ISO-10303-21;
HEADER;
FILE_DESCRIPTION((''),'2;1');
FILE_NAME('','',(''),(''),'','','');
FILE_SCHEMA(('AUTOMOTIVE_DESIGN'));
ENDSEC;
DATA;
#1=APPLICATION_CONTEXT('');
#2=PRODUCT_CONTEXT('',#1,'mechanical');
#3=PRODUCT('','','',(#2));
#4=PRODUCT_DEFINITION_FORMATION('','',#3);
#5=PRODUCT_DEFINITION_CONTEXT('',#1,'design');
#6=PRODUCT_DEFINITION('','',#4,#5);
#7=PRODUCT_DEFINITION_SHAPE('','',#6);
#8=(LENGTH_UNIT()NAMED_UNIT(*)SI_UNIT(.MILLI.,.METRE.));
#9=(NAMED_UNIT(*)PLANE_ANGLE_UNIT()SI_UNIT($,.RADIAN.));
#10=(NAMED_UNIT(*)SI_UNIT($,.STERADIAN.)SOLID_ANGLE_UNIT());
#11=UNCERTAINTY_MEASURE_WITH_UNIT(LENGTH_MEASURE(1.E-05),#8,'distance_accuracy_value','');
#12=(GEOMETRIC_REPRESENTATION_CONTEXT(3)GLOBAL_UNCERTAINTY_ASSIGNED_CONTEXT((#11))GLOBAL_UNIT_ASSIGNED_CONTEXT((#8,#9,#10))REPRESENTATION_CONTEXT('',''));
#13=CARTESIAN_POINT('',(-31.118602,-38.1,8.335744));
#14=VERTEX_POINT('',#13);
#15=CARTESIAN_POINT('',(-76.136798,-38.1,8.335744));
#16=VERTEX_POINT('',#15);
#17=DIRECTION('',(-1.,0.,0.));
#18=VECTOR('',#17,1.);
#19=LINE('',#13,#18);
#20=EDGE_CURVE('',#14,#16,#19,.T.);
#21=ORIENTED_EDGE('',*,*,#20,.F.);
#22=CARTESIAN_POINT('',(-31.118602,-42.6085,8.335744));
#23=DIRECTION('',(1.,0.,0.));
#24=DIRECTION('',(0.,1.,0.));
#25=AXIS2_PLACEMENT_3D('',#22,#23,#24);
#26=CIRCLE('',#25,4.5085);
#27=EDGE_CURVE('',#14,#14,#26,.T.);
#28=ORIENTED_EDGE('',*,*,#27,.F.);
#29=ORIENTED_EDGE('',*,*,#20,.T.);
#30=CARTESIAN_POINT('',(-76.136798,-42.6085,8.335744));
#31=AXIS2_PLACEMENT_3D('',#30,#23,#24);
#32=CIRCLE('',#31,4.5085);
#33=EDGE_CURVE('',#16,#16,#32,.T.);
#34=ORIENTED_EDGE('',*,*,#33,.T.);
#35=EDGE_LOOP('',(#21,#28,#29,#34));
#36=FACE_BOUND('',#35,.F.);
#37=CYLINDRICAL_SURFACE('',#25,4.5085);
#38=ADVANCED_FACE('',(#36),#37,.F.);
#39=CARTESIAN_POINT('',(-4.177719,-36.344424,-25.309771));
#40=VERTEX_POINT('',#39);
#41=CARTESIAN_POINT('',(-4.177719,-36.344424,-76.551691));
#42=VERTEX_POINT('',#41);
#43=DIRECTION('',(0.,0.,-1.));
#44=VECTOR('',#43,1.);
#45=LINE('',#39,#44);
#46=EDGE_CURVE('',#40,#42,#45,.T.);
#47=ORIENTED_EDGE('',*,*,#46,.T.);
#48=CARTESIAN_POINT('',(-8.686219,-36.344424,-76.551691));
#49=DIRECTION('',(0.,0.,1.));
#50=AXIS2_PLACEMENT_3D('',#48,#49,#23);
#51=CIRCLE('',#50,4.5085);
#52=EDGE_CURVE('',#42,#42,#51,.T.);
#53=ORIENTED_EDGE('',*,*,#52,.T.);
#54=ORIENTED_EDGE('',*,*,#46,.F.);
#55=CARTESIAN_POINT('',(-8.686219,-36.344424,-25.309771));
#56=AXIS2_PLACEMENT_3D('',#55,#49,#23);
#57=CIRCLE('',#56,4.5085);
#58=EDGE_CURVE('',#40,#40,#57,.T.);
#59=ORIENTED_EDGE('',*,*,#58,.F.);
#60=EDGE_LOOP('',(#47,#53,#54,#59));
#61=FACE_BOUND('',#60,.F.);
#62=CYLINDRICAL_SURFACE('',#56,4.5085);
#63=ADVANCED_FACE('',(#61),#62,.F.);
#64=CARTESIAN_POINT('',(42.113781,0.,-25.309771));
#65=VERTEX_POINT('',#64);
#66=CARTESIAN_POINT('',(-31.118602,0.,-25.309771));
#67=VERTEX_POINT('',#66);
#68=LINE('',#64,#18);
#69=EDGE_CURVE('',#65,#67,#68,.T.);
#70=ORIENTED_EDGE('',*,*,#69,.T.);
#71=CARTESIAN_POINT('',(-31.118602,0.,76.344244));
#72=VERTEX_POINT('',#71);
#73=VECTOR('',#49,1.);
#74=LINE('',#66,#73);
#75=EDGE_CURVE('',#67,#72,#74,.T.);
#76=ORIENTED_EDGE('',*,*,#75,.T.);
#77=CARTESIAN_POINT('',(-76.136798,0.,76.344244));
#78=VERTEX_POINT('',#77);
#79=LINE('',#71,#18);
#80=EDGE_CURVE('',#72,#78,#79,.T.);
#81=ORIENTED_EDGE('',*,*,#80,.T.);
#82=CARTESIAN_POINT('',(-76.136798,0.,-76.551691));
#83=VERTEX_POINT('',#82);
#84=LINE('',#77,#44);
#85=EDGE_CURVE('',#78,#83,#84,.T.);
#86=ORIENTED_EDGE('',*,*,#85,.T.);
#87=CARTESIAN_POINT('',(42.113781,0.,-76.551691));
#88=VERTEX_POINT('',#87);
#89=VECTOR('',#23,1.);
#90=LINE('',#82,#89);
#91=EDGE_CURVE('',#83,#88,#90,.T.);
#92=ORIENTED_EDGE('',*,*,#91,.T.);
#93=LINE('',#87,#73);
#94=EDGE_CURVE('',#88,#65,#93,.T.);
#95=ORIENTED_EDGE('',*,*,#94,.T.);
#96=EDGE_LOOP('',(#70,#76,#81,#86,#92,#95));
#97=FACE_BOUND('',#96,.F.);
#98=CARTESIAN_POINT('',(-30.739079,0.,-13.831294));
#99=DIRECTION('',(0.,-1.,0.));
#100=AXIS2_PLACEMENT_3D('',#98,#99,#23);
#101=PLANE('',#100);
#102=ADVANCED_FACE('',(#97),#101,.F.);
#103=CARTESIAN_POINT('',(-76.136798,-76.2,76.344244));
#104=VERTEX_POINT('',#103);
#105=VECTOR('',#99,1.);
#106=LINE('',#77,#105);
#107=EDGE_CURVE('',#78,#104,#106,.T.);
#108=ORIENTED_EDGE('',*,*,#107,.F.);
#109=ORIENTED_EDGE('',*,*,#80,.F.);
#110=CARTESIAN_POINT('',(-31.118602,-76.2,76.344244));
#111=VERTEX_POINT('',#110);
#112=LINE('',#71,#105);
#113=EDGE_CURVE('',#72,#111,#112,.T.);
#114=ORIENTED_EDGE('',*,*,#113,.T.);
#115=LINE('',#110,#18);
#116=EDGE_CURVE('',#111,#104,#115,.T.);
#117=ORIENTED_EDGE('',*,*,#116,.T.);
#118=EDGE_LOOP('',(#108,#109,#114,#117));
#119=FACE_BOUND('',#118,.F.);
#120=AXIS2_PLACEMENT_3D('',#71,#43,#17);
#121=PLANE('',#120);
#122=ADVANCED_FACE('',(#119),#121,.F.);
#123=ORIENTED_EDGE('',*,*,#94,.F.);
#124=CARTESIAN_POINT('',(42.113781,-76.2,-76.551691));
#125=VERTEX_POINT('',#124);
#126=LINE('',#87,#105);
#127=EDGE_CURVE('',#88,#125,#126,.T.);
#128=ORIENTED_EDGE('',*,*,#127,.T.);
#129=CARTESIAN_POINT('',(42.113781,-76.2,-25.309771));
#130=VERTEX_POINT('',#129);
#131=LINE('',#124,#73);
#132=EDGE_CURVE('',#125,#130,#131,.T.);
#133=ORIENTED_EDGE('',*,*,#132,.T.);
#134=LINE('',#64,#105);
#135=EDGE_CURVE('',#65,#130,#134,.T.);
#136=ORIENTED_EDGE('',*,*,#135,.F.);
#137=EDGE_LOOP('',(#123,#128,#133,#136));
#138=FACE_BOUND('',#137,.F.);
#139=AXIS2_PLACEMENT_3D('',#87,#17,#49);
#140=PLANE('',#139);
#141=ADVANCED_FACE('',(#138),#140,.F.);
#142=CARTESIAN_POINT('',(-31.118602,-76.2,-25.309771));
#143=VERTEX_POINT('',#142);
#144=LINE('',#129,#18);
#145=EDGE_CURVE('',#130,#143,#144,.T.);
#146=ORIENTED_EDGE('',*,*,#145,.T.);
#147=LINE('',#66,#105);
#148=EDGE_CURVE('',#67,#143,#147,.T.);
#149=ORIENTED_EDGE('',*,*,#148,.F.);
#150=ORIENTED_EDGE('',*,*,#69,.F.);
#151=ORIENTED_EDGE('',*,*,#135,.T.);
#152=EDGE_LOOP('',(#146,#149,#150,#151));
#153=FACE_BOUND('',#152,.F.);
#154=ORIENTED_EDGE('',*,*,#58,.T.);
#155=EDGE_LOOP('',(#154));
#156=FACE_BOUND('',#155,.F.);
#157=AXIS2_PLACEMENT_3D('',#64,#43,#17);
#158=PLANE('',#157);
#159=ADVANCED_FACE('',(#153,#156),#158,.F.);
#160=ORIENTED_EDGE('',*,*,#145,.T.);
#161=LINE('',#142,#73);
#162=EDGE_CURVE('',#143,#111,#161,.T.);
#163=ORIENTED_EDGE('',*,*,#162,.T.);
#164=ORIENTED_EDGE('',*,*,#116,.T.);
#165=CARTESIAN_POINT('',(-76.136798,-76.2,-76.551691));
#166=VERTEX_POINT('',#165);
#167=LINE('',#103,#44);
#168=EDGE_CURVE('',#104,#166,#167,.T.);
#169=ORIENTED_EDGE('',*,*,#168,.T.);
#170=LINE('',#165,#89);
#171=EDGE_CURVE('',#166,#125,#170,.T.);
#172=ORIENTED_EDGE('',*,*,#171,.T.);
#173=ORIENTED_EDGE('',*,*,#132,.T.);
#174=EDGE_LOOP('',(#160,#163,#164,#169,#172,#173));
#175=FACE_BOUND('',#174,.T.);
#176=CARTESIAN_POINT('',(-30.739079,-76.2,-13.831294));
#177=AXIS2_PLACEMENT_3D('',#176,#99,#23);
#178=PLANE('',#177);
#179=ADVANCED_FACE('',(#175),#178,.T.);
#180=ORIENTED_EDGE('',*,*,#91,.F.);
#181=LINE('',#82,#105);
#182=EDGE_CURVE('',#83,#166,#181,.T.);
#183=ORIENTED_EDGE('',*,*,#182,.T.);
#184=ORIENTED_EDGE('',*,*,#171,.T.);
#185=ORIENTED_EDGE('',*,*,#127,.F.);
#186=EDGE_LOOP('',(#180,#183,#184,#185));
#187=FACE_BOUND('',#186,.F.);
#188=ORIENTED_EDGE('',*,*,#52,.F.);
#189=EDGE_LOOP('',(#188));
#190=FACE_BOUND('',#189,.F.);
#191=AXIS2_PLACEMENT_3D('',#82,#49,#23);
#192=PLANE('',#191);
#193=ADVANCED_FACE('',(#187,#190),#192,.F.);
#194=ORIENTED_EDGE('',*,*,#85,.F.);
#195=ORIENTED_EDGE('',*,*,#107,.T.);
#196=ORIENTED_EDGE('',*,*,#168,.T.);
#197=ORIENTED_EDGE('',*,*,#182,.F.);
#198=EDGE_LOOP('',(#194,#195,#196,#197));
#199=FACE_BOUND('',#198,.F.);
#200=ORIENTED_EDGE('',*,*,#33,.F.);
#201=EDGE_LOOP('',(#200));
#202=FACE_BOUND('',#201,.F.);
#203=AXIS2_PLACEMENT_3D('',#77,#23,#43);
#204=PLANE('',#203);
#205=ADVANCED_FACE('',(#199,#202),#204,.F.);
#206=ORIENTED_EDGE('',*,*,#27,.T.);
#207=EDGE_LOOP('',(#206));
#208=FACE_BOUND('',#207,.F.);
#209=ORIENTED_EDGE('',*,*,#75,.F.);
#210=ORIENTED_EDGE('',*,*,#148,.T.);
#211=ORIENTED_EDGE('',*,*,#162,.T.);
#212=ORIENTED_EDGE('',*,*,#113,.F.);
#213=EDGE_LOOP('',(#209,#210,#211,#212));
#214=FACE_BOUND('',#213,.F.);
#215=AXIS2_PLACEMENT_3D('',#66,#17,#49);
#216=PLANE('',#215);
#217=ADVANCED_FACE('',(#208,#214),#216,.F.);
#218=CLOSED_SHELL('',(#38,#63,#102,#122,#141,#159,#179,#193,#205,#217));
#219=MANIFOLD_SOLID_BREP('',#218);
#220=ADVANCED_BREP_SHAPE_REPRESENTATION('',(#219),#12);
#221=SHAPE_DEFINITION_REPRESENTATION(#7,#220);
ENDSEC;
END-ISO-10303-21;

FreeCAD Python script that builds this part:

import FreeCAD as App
import Part
import Sketcher
from FreeCAD import Vector
Q = App.Units.Quantity

doc = App.newDocument("Part")
body = doc.addObject("PartDesign::Body", "Body")

sketch1 = doc.addObject("Sketcher::SketchObject", "Sketch")
body.addObject(sketch1)
sketch1.AttachmentSupport = (doc.XZ_Plane, [""])
sketch1.MapMode = "FlatFace"
sketch1.addGeometry([
    Part.LineSegment(Vector(-31, 76, 0), Vector(-76, 76, 0)),
    Part.LineSegment(Vector(-76, 76, 0), Vector(-76, -77, 0)),
    Part.LineSegment(Vector(-76, -77, 0), Vector(42, -77, 0)),
    Part.LineSegment(Vector(42, -77, 0), Vector(42, -25, 0)),
    Part.LineSegment(Vector(42, -25, 0), Vector(-31, -25, 0)),
    Part.LineSegment(Vector(-31, -25, 0), Vector(-31, 76, 0)),
], False)
sketch1.addConstraint([
    Sketcher.Constraint("Coincident", 0, 2, 1, 1),
    Sketcher.Constraint("Coincident", 1, 2, 2, 1),
    Sketcher.Constraint("Coincident", 2, 2, 3, 1),
    Sketcher.Constraint("Coincident", 3, 2, 4, 1),
    Sketcher.Constraint("Coincident", 4, 2, 5, 1),
    Sketcher.Constraint("Coincident", 5, 2, 0, 1),
    Sketcher.Constraint("Horizontal", 0),
    Sketcher.Constraint("Vertical", 1),
    Sketcher.Constraint("Horizontal", 2),
    Sketcher.Constraint("Vertical", 3),
    Sketcher.Constraint("Horizontal", 4),
    Sketcher.Constraint("Vertical", 5),
    Sketcher.Constraint("DistanceX", 2, 1, 2, 2, Q("118.250579 mm")),
    Sketcher.Constraint("DistanceY", 3, 1, 3, 2, Q("51.24192 mm")),
    Sketcher.Constraint("DistanceX", 0, 2, -1, 1, Q("76.136798 mm")),
    Sketcher.Constraint("DistanceX", 4, 2, -1, 1, Q("31.118602 mm")),
    Sketcher.Constraint("DistanceY", 1, 2, 1, 1, Q("152.895935 mm")),
    Sketcher.Constraint("DistanceY", 1, 2, -1, 1, Q("76.551691 mm")),
])
pad1 = doc.addObject("PartDesign::Pad", "Pad")
body.addObject(pad1)
pad1.Profile = sketch1
pad1.Length = Q("3 in")

sketch2 = doc.addObject("Sketcher::SketchObject", "Sketch001")
body.addObject(sketch2)
sketch2.AttachmentSupport = (doc.XY_Plane, [""])
sketch2.MapMode = "FlatFace"
sketch2.AttachmentOffset = App.Placement(Vector(0, 0, -25.309771), App.Rotation())
sketch2.addGeometry(Part.Circle(Vector(-8.7, -36.3, 0), Vector(0, 0, 1), 4.5), False)
sketch2.addConstraint([
    Sketcher.Constraint("Diameter", 0, Q("0.355 in")),
    Sketcher.Constraint("DistanceX", 0, 3, -1, 1, Q("8.686219 mm")),
    Sketcher.Constraint("DistanceY", 0, 3, -1, 1, Q("36.344424 mm")),
])
pocket1 = doc.addObject("PartDesign::Pocket", "Pocket")
body.addObject(pocket1)
pocket1.Profile = sketch2
pocket1.Length = Q("3 in")

sketch3 = doc.addObject("Sketcher::SketchObject", "Sketch002")
body.addObject(sketch3)
sketch3.AttachmentSupport = (doc.YZ_Plane, [""])
sketch3.MapMode = "FlatFace"
sketch3.AttachmentOffset = App.Placement(Vector(0, 0, -31.118602), App.Rotation())
sketch3.addGeometry(Part.Circle(Vector(-42.6, 8.3, 0), Vector(0, 0, 1), 4.5), False)
sketch3.addConstraint([
    Sketcher.Constraint("Diameter", 0, Q("0.355 in")),
    Sketcher.Constraint("DistanceX", 0, 3, -1, 1, Q("1.6775 in")),
    Sketcher.Constraint("DistanceY", -1, 1, 0, 3, Q("8.335744 mm")),
])
pocket2 = doc.addObject("PartDesign::Pocket", "Pocket001")
body.addObject(pocket2)
pocket2.Profile = sketch3
pocket2.Length = Q("3 in")

doc.recompute()
